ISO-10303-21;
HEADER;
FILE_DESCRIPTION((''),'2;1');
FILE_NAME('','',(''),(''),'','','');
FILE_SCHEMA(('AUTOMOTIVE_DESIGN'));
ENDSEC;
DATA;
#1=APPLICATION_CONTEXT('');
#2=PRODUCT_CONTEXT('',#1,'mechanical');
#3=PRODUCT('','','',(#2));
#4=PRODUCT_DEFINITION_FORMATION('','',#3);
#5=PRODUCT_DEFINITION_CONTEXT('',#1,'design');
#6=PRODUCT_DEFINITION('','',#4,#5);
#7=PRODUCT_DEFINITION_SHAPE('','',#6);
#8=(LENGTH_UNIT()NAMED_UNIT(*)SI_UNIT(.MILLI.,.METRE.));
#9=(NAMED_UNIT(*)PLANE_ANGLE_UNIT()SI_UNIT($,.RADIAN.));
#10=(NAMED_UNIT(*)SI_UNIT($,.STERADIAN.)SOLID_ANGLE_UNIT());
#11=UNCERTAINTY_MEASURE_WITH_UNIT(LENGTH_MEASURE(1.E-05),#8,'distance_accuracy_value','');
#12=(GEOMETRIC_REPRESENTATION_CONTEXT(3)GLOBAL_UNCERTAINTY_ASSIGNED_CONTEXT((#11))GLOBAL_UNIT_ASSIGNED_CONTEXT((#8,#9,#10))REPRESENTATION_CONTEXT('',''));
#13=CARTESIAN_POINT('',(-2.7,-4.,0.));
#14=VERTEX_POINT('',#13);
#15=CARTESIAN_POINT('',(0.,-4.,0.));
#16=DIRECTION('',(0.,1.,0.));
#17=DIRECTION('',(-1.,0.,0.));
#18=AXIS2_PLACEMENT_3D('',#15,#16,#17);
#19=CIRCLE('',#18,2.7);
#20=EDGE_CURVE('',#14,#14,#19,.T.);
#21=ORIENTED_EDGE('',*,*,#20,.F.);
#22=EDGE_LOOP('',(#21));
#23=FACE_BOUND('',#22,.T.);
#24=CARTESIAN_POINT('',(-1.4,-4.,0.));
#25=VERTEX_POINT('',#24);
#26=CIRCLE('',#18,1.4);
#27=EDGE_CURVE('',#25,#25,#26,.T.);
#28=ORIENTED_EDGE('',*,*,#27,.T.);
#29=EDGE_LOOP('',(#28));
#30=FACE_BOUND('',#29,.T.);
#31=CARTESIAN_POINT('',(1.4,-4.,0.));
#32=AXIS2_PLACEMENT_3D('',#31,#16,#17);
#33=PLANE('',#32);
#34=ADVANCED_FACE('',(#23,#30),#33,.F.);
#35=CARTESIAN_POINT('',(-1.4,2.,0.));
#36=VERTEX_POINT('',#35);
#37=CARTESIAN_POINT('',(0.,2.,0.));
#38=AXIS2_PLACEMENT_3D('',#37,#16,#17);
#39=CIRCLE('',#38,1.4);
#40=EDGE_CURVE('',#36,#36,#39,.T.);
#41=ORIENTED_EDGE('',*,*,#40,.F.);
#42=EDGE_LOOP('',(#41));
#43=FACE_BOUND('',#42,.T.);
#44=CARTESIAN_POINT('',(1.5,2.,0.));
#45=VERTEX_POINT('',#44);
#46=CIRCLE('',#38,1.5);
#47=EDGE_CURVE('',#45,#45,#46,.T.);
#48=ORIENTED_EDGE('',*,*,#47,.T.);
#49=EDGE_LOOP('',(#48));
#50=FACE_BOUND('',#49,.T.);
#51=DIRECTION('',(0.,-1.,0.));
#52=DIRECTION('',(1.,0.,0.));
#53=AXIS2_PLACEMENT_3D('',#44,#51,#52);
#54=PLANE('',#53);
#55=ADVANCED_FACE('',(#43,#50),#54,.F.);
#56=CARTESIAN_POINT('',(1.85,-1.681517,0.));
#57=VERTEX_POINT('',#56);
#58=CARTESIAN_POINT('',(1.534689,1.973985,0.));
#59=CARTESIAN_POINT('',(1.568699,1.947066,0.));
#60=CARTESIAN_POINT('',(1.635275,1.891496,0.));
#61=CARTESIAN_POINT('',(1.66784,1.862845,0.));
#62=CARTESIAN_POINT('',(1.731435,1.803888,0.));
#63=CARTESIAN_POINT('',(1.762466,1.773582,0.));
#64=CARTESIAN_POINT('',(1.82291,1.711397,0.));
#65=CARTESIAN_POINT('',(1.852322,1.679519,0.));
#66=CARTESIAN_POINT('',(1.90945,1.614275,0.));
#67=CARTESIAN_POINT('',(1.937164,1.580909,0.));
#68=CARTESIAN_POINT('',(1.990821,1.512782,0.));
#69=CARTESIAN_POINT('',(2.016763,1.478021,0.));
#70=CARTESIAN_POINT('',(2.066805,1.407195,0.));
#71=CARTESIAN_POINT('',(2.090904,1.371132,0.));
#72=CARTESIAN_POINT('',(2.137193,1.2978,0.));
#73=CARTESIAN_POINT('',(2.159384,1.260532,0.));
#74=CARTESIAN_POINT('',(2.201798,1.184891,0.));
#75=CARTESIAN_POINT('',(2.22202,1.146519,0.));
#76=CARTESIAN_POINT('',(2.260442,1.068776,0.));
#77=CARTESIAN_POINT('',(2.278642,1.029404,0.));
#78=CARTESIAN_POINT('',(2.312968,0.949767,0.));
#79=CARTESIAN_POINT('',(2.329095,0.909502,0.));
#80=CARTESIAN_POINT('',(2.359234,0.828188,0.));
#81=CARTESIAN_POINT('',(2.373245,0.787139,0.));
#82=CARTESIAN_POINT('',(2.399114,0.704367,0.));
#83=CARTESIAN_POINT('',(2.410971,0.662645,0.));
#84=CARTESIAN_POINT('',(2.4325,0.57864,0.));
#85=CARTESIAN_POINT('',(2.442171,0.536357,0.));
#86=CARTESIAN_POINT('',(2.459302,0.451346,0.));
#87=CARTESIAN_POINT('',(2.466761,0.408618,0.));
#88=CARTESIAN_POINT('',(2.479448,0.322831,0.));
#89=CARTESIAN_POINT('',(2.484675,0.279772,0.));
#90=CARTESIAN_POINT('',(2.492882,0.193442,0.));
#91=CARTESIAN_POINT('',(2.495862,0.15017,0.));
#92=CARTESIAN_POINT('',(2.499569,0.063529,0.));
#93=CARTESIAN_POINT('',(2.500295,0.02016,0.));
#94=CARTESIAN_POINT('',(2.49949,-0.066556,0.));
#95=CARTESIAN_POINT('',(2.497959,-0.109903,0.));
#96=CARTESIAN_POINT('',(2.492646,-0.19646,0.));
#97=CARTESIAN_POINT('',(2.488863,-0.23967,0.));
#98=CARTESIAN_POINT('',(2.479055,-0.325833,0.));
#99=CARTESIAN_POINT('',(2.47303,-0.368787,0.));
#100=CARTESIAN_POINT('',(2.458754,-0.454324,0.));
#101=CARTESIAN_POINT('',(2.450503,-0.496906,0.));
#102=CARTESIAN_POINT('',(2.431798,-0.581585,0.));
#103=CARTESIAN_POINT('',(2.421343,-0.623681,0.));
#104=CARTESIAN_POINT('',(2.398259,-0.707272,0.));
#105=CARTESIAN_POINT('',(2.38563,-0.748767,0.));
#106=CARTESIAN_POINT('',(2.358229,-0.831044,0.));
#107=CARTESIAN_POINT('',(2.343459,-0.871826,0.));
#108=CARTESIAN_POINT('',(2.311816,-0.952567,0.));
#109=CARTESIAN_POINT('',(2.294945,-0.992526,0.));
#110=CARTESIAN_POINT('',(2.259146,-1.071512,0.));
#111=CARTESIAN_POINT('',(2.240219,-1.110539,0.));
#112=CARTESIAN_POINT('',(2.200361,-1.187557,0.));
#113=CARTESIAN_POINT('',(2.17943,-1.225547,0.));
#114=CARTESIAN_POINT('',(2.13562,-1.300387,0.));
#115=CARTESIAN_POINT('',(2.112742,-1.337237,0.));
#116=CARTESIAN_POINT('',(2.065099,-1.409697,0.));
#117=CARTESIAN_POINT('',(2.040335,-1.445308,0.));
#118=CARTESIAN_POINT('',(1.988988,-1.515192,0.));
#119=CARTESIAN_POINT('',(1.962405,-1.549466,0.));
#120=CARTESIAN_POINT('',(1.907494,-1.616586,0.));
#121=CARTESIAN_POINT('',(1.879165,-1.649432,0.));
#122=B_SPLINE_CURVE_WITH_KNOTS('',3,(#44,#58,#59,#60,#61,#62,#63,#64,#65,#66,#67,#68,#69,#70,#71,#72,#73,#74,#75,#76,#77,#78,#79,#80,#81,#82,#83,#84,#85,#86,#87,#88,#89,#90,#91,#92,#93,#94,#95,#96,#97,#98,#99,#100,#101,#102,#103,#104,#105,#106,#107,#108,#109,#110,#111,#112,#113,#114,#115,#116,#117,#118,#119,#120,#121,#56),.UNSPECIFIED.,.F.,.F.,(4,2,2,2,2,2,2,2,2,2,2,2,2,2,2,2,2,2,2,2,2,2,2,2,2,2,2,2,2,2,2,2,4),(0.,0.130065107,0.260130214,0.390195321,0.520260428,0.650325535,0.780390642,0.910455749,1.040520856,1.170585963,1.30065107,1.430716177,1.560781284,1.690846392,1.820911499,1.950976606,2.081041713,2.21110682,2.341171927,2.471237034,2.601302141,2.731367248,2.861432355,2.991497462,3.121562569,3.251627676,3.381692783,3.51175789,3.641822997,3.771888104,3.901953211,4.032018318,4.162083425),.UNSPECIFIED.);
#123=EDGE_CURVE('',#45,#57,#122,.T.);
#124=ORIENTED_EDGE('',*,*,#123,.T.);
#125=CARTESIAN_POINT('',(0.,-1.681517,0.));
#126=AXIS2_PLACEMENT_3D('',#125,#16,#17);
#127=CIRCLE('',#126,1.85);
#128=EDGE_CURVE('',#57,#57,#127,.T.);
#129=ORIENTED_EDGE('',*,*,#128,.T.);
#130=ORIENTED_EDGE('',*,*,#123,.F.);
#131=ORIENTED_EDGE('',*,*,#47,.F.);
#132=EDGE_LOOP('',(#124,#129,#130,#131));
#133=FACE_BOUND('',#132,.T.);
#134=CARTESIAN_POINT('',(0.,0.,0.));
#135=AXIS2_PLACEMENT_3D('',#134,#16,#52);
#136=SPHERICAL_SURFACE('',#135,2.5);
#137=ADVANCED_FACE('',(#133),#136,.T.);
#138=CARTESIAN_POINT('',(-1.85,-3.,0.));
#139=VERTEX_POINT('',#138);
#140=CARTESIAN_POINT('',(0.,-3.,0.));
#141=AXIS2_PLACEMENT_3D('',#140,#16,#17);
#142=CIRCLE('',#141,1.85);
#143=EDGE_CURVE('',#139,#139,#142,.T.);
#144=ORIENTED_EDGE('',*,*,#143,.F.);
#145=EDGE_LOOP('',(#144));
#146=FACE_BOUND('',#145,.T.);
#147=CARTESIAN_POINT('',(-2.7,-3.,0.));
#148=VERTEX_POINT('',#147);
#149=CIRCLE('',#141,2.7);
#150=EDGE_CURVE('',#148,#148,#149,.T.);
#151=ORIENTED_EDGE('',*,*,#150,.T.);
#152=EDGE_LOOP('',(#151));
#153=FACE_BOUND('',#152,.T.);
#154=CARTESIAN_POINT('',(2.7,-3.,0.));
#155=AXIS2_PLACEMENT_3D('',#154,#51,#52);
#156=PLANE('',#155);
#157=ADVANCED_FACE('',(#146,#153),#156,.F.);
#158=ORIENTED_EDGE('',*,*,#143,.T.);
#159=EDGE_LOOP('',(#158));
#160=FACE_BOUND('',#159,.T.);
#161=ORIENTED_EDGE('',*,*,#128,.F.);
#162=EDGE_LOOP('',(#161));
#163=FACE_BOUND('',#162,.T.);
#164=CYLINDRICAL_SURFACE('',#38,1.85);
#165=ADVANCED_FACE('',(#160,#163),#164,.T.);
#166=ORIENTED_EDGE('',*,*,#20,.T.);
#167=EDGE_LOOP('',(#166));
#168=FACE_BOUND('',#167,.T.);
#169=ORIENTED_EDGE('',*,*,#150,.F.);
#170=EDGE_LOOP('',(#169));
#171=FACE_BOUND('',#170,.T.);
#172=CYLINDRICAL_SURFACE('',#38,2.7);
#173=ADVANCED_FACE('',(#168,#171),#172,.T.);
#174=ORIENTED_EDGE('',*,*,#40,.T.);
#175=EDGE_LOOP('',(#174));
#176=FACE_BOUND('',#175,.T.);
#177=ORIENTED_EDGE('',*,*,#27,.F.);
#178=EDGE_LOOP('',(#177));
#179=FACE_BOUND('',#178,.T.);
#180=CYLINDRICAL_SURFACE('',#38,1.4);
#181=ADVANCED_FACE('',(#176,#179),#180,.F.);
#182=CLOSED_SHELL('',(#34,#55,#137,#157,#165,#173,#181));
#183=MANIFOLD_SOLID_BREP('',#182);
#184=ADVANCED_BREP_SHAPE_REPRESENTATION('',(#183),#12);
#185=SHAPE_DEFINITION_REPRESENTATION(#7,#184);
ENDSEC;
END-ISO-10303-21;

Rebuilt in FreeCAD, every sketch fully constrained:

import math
import FreeCAD as App
import Part
import Sketcher

doc = App.newDocument("Part")
body = doc.addObject("PartDesign::Body", "Body")

# Sketch on XY plane
sketch1 = body.newObject("Sketcher::SketchObject", "Sketch")
sketch1.AttachmentSupport = (doc.getObject("XY_Plane"), [""])
sketch1.MapMode = "FlatFace"
sketch1.addGeometry(Part.LineSegment(App.Vector(1.5, 2, 0), App.Vector(1.4, 2, 0)), False)
sketch1.addGeometry(Part.LineSegment(App.Vector(1.4, 2, 0), App.Vector(1.4, -4, 0)), False)
sketch1.addGeometry(Part.LineSegment(App.Vector(1.4, -4, 0), App.Vector(2.7, -4, 0)), False)
sketch1.addGeometry(Part.LineSegment(App.Vector(2.7, -4, 0), App.Vector(2.7, -3, 0)), False)
sketch1.addGeometry(Part.LineSegment(App.Vector(2.7, -3, 0), App.Vector(1.85, -3, 0)), False)
sketch1.addGeometry(Part.LineSegment(App.Vector(1.85, -3, 0), App.Vector(1.85, -1.68, 0)), False)
sketch1.addGeometry(Part.ArcOfCircle(Part.Circle(App.Vector(0, 0, 0), App.Vector(0, 0, 1), 2.5), math.radians(-42), math.radians(53)), False)
sketch1.addConstraint(Sketcher.Constraint("Coincident", 0, 2, 1, 1))
sketch1.addConstraint(Sketcher.Constraint("Coincident", 1, 2, 2, 1))
sketch1.addConstraint(Sketcher.Constraint("Coincident", 2, 2, 3, 1))
sketch1.addConstraint(Sketcher.Constraint("Coincident", 3, 2, 4, 1))
sketch1.addConstraint(Sketcher.Constraint("Coincident", 4, 2, 5, 1))
sketch1.addConstraint(Sketcher.Constraint("Coincident", 5, 2, 6, 1))
sketch1.addConstraint(Sketcher.Constraint("Coincident", 6, 2, 0, 1))
sketch1.addConstraint(Sketcher.Constraint("Horizontal", 0))
sketch1.addConstraint(Sketcher.Constraint("Vertical", 1))
sketch1.addConstraint(Sketcher.Constraint("Horizontal", 2))
sketch1.addConstraint(Sketcher.Constraint("Vertical", 3))
sketch1.addConstraint(Sketcher.Constraint("Horizontal", 4))
sketch1.addConstraint(Sketcher.Constraint("Vertical", 5))
sketch1.addConstraint(Sketcher.Constraint("Coincident", 6, 3, -1, 1))
sketch1.addConstraint(Sketcher.Constraint("Radius", 6, 2.5))
sketch1.addConstraint(Sketcher.Constraint("DistanceY", 1, 2, 1, 1, 6.0))
sketch1.addConstraint(Sketcher.Constraint("DistanceY", 3, 1, 3, 2, 1.0))
sketch1.addConstraint(Sketcher.Constraint("DistanceX", 0, 2, 0, 1, 0.1))
sketch1.addConstraint(Sketcher.Constraint("DistanceX", 2, 1, 2, 2, 1.3))
sketch1.addConstraint(Sketcher.Constraint("DistanceY", -1, 1, 0, 2, 2.0))
sketch1.addConstraint(Sketcher.Constraint("DistanceX", 4, 2, 4, 1, 0.85))
revolution = body.newObject("PartDesign::Revolution", "Revolution")
revolution.Profile = sketch1
revolution.ReferenceAxis = (sketch1, ["V_Axis"])
revolution.Angle = 360

doc.recompute()
